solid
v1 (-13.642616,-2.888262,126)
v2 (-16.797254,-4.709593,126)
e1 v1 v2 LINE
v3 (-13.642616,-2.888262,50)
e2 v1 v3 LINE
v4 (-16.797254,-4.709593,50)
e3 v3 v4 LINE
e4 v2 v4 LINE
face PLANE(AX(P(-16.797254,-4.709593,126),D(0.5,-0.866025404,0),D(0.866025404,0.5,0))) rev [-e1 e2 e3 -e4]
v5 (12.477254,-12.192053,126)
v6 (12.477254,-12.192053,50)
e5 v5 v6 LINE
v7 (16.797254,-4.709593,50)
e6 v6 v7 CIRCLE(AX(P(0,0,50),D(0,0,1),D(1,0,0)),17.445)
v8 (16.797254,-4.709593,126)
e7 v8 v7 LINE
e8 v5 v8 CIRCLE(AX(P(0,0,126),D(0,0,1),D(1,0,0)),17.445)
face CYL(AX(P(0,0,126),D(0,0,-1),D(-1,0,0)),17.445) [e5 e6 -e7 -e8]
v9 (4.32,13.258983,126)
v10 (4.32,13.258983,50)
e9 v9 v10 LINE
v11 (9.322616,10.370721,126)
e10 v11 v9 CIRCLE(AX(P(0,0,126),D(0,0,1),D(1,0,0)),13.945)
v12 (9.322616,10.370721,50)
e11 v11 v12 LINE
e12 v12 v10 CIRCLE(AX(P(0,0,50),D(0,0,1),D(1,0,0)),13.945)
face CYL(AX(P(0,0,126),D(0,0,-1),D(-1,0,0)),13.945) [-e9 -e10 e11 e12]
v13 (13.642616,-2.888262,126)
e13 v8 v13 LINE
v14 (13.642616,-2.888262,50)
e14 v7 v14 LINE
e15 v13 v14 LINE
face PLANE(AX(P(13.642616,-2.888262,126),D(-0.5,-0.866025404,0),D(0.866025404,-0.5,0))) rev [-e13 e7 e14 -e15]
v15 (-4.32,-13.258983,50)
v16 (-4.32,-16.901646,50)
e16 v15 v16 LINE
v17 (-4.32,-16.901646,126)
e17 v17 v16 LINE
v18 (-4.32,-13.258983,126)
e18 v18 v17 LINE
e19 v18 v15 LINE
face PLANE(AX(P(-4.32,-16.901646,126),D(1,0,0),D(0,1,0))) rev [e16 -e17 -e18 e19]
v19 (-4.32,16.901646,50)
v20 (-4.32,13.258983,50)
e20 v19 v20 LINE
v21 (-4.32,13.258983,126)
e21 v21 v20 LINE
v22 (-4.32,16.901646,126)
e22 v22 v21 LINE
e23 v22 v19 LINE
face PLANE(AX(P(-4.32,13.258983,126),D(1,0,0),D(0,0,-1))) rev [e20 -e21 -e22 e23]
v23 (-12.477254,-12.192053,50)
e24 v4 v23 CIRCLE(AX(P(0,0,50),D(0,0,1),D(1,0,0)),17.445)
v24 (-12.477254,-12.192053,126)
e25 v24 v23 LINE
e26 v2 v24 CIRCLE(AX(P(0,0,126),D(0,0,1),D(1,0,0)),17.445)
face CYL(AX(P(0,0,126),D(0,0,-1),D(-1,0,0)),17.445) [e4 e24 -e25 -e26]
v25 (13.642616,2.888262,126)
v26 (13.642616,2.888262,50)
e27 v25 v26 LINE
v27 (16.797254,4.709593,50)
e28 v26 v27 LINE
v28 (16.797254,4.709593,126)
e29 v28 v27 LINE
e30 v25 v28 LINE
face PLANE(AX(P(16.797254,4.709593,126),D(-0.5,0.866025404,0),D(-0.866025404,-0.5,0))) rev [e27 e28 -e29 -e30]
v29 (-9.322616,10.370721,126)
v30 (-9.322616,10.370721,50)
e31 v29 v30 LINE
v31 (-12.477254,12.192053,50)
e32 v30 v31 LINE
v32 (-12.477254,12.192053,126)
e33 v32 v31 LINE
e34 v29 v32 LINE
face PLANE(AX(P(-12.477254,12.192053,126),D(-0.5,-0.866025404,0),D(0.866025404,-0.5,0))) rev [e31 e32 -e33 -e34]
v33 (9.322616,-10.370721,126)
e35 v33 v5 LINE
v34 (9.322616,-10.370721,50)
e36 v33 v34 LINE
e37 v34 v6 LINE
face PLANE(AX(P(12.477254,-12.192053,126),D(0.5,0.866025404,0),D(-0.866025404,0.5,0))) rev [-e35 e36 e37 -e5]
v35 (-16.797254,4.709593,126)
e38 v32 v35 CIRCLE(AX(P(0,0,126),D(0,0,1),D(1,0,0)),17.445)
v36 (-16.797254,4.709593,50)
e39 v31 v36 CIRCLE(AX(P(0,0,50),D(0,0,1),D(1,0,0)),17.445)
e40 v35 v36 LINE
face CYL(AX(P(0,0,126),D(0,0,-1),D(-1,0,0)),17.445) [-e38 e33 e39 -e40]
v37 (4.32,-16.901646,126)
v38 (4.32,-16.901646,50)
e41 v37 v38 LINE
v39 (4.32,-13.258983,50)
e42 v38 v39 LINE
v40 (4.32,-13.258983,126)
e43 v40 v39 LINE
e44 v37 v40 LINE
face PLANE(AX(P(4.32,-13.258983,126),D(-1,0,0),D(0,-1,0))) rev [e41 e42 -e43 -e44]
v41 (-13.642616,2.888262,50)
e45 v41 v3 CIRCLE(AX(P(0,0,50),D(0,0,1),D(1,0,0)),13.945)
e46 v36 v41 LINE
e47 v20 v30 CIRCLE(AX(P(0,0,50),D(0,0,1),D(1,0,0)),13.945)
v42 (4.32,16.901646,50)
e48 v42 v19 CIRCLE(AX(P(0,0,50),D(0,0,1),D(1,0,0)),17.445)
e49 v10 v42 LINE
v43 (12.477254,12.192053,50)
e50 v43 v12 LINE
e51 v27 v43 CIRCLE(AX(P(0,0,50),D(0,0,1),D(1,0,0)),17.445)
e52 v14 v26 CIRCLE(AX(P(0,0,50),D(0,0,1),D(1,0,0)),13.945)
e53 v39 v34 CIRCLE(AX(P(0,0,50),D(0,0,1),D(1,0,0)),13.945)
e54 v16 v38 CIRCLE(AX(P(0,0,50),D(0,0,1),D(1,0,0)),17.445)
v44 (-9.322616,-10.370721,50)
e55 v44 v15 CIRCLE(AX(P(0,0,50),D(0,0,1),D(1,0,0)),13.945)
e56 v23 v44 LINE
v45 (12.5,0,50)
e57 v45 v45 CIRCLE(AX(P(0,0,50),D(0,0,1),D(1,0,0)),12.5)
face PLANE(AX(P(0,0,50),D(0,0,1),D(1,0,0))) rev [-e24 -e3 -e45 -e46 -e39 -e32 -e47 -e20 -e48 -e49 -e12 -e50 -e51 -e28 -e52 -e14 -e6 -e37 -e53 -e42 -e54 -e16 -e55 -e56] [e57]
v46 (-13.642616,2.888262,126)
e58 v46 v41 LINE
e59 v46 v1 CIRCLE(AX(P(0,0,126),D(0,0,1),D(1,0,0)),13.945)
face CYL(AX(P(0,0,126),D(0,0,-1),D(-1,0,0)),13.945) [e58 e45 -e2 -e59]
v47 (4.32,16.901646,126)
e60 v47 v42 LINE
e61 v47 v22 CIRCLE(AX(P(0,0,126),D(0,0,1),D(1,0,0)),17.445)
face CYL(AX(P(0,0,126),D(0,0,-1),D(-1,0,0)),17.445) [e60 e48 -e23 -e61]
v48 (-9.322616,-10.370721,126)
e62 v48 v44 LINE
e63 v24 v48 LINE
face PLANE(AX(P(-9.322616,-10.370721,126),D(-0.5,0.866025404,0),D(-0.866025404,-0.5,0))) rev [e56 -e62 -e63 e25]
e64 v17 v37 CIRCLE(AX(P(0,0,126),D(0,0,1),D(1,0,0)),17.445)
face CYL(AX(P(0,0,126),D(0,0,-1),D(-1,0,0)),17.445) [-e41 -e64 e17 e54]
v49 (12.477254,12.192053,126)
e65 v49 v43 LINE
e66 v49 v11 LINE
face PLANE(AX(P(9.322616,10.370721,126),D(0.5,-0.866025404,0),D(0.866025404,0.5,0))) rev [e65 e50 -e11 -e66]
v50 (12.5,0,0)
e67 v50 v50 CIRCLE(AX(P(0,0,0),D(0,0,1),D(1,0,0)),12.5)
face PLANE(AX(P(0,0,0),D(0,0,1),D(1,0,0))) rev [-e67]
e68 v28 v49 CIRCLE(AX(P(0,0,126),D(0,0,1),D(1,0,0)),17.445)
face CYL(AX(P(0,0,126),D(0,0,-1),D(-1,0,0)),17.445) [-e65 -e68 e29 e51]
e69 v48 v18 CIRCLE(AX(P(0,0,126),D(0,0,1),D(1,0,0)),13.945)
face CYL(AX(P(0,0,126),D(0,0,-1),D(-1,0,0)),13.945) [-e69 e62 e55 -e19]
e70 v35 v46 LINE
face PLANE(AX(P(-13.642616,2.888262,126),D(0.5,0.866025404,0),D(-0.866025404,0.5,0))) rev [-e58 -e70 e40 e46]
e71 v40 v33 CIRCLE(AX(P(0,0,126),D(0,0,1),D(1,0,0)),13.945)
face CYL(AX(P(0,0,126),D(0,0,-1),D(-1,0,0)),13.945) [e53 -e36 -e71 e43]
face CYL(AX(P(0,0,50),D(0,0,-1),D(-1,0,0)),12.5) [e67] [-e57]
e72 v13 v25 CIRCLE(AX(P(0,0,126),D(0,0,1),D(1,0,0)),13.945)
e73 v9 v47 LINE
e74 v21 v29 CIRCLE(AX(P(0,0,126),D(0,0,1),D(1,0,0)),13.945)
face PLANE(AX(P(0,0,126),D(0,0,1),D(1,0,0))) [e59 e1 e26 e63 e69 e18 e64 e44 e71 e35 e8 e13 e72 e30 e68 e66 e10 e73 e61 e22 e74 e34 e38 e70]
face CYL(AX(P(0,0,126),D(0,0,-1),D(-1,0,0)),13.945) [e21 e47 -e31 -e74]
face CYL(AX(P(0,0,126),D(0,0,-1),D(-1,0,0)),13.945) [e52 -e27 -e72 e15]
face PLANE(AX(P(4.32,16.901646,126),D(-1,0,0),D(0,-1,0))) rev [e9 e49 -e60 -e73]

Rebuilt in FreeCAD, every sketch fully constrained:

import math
import FreeCAD as App
import Part
import Sketcher
from FreeCAD import Vector
Q = App.Units.Quantity

doc = App.newDocument("Part")
params = doc.addObject("Spreadsheet::Sheet", "Params")
for row, (alias, value) in enumerate([
    ("sketch1_diameter", "25 mm"),
    ("pad1_length", "50 mm"),
    ("pad2_length", "76 mm"),
], start=1):
    params.set(f"A{row}", alias)
    params.set(f"B{row}", "=" + value)
    params.setAlias(f"B{row}", alias)

body = doc.addObject("PartDesign::Body", "Body")

# Sketch on XY plane
sketch1 = body.newObject("Sketcher::SketchObject", "Sketch")
sketch1.AttachmentSupport = (doc.getObject("XY_Plane"), [""])
sketch1.MapMode = "FlatFace"
sketch1.addGeometry(Part.Circle(Vector(0, 0, 0), Vector(0, 0, 1), 12.5), False)
sketch1.addConstraint(Sketcher.Constraint("Coincident", 0, 3, -1, 1))
sketch1.addConstraint(Sketcher.Constraint("Diameter", 0, 25.0))
sketch1.setExpression("Constraints[1]", "Params.sketch1_diameter")
pad1 = body.newObject("PartDesign::Pad", "Pad")
pad1.Profile = sketch1
pad1.setExpression("Length", "Params.pad1_length")

# Sketch on XY plane
sketch2 = body.newObject("Sketcher::SketchObject", "Sketch001")
sketch2.AttachmentSupport = (doc.getObject("XY_Plane"), [""])
sketch2.MapMode = "FlatFace"
sketch2.AttachmentOffset = App.Placement(Vector(0, 0, 50), App.Rotation())
sketch2.addGeometry(Part.LineSegment(Vector(12.477254, 12.192053, 0), Vector(9.322616, 10.370721, 0)), False)
sketch2.addGeometry(Part.ArcOfCircle(Part.Circle(Vector(0, 0, 0), Vector(0, 0, 1), 13.945), math.radians(48.046482), math.radians(71.953518)), False)
sketch2.addGeometry(Part.LineSegment(Vector(4.32, 13.258983, 0), Vector(4.32, 16.901646, 0)), False)
sketch2.addGeometry(Part.ArcOfCircle(Part.Circle(Vector(0, 0, 0), Vector(0, 0, 1), 17.445), math.radians(75.662367), math.radians(104.337633)), False)
sketch2.addGeometry(Part.LineSegment(Vector(-4.32, 16.901646, 0), Vector(-4.32, 13.258983, 0)), False)
sketch2.addGeometry(Part.ArcOfCircle(Part.Circle(Vector(0, 0, 0), Vector(0, 0, 1), 13.945), math.radians(108.046482), math.radians(131.953518)), False)
sketch2.addGeometry(Part.LineSegment(Vector(-9.322616, 10.370721, 0), Vector(-12.477254, 12.192053, 0)), False)
sketch2.addGeometry(Part.ArcOfCircle(Part.Circle(Vector(0, 0, 0), Vector(0, 0, 1), 17.445), math.radians(135.662367), math.radians(164.337633)), False)
sketch2.addGeometry(Part.LineSegment(Vector(-16.797254, 4.709593, 0), Vector(-13.642616, 2.888262, 0)), False)
sketch2.addGeometry(Part.ArcOfCircle(Part.Circle(Vector(0, 0, 0), Vector(0, 0, 1), 13.945), math.radians(168.046482), math.radians(191.953518)), False)
sketch2.addGeometry(Part.LineSegment(Vector(-13.642616, -2.888262, 0), Vector(-16.797254, -4.709593, 0)), False)
sketch2.addGeometry(Part.ArcOfCircle(Part.Circle(Vector(0, 0, 0), Vector(0, 0, 1), 17.445), math.radians(-164.337633), math.radians(-135.662367)), False)
sketch2.addGeometry(Part.LineSegment(Vector(-12.477254, -12.192053, 0), Vector(-9.322616, -10.370721, 0)), False)
sketch2.addGeometry(Part.ArcOfCircle(Part.Circle(Vector(0, 0, 0), Vector(0, 0, 1), 13.945), math.radians(-131.953518), math.radians(-108.046482)), False)
sketch2.addGeometry(Part.LineSegment(Vector(-4.32, -13.258983, 0), Vector(-4.32, -16.901646, 0)), False)
sketch2.addGeometry(Part.ArcOfCircle(Part.Circle(Vector(0, 0, 0), Vector(0, 0, 1), 17.445), math.radians(-104.337633), math.radians(-75.662367)), False)
sketch2.addGeometry(Part.LineSegment(Vector(4.32, -16.901646, 0), Vector(4.32, -13.258983, 0)), False)
sketch2.addGeometry(Part.ArcOfCircle(Part.Circle(Vector(0, 0, 0), Vector(0, 0, 1), 13.945), math.radians(-71.953518), math.radians(-48.046482)), False)
sketch2.addGeometry(Part.LineSegment(Vector(9.322616, -10.370721, 0), Vector(12.477254, -12.192053, 0)), False)
sketch2.addGeometry(Part.ArcOfCircle(Part.Circle(Vector(0, 0, 0), Vector(0, 0, 1), 17.445), math.radians(-44.337633), math.radians(-15.662367)), False)
sketch2.addGeometry(Part.LineSegment(Vector(16.797254, -4.709593, 0), Vector(13.642616, -2.888262, 0)), False)
sketch2.addGeometry(Part.ArcOfCircle(Part.Circle(Vector(0, 0, 0), Vector(0, 0, 1), 13.945), math.radians(-11.953518), math.radians(11.953518)), False)
sketch2.addGeometry(Part.LineSegment(Vector(13.642616, 2.888262, 0), Vector(16.797254, 4.709593, 0)), False)
sketch2.addGeometry(Part.ArcOfCircle(Part.Circle(Vector(0, 0, 0), Vector(0, 0, 1), 17.445), math.radians(15.662367), math.radians(44.337633)), False)
sketch2.addConstraint(Sketcher.Constraint("Coincident", 0, 2, 1, 1))
sketch2.addConstraint(Sketcher.Constraint("Coincident", 1, 2, 2, 1))
sketch2.addConstraint(Sketcher.Constraint("Coincident", 2, 2, 3, 1))
sketch2.addConstraint(Sketcher.Constraint("Coincident", 3, 2, 4, 1))
sketch2.addConstraint(Sketcher.Constraint("Coincident", 4, 2, 5, 1))
sketch2.addConstraint(Sketcher.Constraint("Coincident", 5, 2, 6, 1))
sketch2.addConstraint(Sketcher.Constraint("Coincident", 6, 2, 7, 1))
sketch2.addConstraint(Sketcher.Constraint("Coincident", 7, 2, 8, 1))
sketch2.addConstraint(Sketcher.Constraint("Coincident", 8, 2, 9, 1))
sketch2.addConstraint(Sketcher.Constraint("Coincident", 9, 2, 10, 1))
sketch2.addConstraint(Sketcher.Constraint("Coincident", 10, 2, 11, 1))
sketch2.addConstraint(Sketcher.Constraint("Coincident", 11, 2, 12, 1))
sketch2.addConstraint(Sketcher.Constraint("Coincident", 12, 2, 13, 1))
sketch2.addConstraint(Sketcher.Constraint("Coincident", 13, 2, 14, 1))
sketch2.addConstraint(Sketcher.Constraint("Coincident", 14, 2, 15, 1))
sketch2.addConstraint(Sketcher.Constraint("Coincident", 15, 2, 16, 1))
sketch2.addConstraint(Sketcher.Constraint("Coincident", 16, 2, 17, 1))
sketch2.addConstraint(Sketcher.Constraint("Coincident", 17, 2, 18, 1))
sketch2.addConstraint(Sketcher.Constraint("Coincident", 18, 2, 19, 1))
sketch2.addConstraint(Sketcher.Constraint("Coincident", 19, 2, 20, 1))
sketch2.addConstraint(Sketcher.Constraint("Coincident", 20, 2, 21, 1))
sketch2.addConstraint(Sketcher.Constraint("Coincident", 21, 2, 22, 1))
sketch2.addConstraint(Sketcher.Constraint("Coincident", 22, 2, 23, 1))
sketch2.addConstraint(Sketcher.Constraint("Coincident", 23, 2, 0, 1))
sketch2.addConstraint(Sketcher.Constraint("Vertical", 2))
sketch2.addConstraint(Sketcher.Constraint("Vertical", 4))
sketch2.addConstraint(Sketcher.Constraint("Vertical", 14))
sketch2.addConstraint(Sketcher.Constraint("Vertical", 16))
sketch2.addConstraint(Sketcher.Constraint("Coincident", 1, 3, -1, 1))
sketch2.addConstraint(Sketcher.Constraint("Coincident", 3, 3, -1, 1))
sketch2.addConstraint(Sketcher.Constraint("Coincident", 5, 3, -1, 1))
sketch2.addConstraint(Sketcher.Constraint("Coincident", 7, 3, -1, 1))
sketch2.addConstraint(Sketcher.Constraint("Coincident", 9, 3, -1, 1))
sketch2.addConstraint(Sketcher.Constraint("Coincident", 11, 3, -1, 1))
sketch2.addConstraint(Sketcher.Constraint("Coincident", 13, 3, -1, 1))
sketch2.addConstraint(Sketcher.Constraint("Coincident", 15, 3, -1, 1))
sketch2.addConstraint(Sketcher.Constraint("Coincident", 17, 3, -1, 1))
sketch2.addConstraint(Sketcher.Constraint("Coincident", 19, 3, -1, 1))
sketch2.addConstraint(Sketcher.Constraint("Coincident", 21, 3, -1, 1))
sketch2.addConstraint(Sketcher.Constraint("Coincident", 23, 3, -1, 1))
sketch2.addConstraint(Sketcher.Constraint("Equal", 1, 5))
sketch2.addConstraint(Sketcher.Constraint("Equal", 3, 7))
sketch2.addConstraint(Sketcher.Constraint("Equal", 5, 9))
sketch2.addConstraint(Sketcher.Constraint("Equal", 7, 11))
sketch2.addConstraint(Sketcher.Constraint("Equal", 9, 13))
sketch2.addConstraint(Sketcher.Constraint("Equal", 11, 15))
sketch2.addConstraint(Sketcher.Constraint("Equal", 13, 17))
sketch2.addConstraint(Sketcher.Constraint("Equal", 15, 19))
sketch2.addConstraint(Sketcher.Constraint("Equal", 17, 21))
sketch2.addConstraint(Sketcher.Constraint("Equal", 19, 23))
sketch2.addConstraint(Sketcher.Constraint("Parallel", 6, 8))
sketch2.addConstraint(Sketcher.Constraint("Parallel", 0, 10))
sketch2.addConstraint(Sketcher.Constraint("Parallel", 10, 12))
sketch2.addConstraint(Sketcher.Constraint("Parallel", 8, 18))
sketch2.addConstraint(Sketcher.Constraint("Parallel", 18, 20))
sketch2.addConstraint(Sketcher.Constraint("Parallel", 12, 22))
sketch2.addConstraint(Sketcher.Constraint("Horizontal", 2, 2, 3, 2))
sketch2.addConstraint(Sketcher.Constraint("Horizontal", 0, 2, 5, 2))
sketch2.addConstraint(Sketcher.Constraint("Horizontal", 14, 2, 15, 2))
sketch2.addConstraint(Sketcher.Constraint("Horizontal", 12, 2, 17, 2))
sketch2.addConstraint(Sketcher.Constraint("Horizontal", 11, 2, 18, 2))
sketch2.addConstraint(Sketcher.Constraint("Horizontal", 10, 2, 19, 2))
sketch2.addConstraint(Sketcher.Constraint("Horizontal", 8, 2, 21, 2))
sketch2.addConstraint(Sketcher.Constraint("Vertical", 8, 2, 9, 2))
sketch2.addConstraint(Sketcher.Constraint("Vertical", 6, 2, 11, 2))
sketch2.addConstraint(Sketcher.Constraint("Vertical", 4, 2, 13, 2))
sketch2.addConstraint(Sketcher.Constraint("Equal", 6, 8))
sketch2.addConstraint(Sketcher.Constraint("Angle", 0, Q("-150 deg")))
sketch2.addConstraint(Sketcher.Constraint("Radius", 1, 13.945))
sketch2.addConstraint(Sketcher.Constraint("Radius", 3, 17.445))
sketch2.addConstraint(Sketcher.Constraint("DistanceX", -1, 1, 1, 2, 4.32))
sketch2.addConstraint(Sketcher.Constraint("DistanceX", 7, 2, 6, 2, 4.32))
pad2 = body.newObject("PartDesign::Pad", "Pad001")
pad2.Profile = sketch2
pad2.setExpression("Length", "Params.pad2_length")

doc.recompute()
